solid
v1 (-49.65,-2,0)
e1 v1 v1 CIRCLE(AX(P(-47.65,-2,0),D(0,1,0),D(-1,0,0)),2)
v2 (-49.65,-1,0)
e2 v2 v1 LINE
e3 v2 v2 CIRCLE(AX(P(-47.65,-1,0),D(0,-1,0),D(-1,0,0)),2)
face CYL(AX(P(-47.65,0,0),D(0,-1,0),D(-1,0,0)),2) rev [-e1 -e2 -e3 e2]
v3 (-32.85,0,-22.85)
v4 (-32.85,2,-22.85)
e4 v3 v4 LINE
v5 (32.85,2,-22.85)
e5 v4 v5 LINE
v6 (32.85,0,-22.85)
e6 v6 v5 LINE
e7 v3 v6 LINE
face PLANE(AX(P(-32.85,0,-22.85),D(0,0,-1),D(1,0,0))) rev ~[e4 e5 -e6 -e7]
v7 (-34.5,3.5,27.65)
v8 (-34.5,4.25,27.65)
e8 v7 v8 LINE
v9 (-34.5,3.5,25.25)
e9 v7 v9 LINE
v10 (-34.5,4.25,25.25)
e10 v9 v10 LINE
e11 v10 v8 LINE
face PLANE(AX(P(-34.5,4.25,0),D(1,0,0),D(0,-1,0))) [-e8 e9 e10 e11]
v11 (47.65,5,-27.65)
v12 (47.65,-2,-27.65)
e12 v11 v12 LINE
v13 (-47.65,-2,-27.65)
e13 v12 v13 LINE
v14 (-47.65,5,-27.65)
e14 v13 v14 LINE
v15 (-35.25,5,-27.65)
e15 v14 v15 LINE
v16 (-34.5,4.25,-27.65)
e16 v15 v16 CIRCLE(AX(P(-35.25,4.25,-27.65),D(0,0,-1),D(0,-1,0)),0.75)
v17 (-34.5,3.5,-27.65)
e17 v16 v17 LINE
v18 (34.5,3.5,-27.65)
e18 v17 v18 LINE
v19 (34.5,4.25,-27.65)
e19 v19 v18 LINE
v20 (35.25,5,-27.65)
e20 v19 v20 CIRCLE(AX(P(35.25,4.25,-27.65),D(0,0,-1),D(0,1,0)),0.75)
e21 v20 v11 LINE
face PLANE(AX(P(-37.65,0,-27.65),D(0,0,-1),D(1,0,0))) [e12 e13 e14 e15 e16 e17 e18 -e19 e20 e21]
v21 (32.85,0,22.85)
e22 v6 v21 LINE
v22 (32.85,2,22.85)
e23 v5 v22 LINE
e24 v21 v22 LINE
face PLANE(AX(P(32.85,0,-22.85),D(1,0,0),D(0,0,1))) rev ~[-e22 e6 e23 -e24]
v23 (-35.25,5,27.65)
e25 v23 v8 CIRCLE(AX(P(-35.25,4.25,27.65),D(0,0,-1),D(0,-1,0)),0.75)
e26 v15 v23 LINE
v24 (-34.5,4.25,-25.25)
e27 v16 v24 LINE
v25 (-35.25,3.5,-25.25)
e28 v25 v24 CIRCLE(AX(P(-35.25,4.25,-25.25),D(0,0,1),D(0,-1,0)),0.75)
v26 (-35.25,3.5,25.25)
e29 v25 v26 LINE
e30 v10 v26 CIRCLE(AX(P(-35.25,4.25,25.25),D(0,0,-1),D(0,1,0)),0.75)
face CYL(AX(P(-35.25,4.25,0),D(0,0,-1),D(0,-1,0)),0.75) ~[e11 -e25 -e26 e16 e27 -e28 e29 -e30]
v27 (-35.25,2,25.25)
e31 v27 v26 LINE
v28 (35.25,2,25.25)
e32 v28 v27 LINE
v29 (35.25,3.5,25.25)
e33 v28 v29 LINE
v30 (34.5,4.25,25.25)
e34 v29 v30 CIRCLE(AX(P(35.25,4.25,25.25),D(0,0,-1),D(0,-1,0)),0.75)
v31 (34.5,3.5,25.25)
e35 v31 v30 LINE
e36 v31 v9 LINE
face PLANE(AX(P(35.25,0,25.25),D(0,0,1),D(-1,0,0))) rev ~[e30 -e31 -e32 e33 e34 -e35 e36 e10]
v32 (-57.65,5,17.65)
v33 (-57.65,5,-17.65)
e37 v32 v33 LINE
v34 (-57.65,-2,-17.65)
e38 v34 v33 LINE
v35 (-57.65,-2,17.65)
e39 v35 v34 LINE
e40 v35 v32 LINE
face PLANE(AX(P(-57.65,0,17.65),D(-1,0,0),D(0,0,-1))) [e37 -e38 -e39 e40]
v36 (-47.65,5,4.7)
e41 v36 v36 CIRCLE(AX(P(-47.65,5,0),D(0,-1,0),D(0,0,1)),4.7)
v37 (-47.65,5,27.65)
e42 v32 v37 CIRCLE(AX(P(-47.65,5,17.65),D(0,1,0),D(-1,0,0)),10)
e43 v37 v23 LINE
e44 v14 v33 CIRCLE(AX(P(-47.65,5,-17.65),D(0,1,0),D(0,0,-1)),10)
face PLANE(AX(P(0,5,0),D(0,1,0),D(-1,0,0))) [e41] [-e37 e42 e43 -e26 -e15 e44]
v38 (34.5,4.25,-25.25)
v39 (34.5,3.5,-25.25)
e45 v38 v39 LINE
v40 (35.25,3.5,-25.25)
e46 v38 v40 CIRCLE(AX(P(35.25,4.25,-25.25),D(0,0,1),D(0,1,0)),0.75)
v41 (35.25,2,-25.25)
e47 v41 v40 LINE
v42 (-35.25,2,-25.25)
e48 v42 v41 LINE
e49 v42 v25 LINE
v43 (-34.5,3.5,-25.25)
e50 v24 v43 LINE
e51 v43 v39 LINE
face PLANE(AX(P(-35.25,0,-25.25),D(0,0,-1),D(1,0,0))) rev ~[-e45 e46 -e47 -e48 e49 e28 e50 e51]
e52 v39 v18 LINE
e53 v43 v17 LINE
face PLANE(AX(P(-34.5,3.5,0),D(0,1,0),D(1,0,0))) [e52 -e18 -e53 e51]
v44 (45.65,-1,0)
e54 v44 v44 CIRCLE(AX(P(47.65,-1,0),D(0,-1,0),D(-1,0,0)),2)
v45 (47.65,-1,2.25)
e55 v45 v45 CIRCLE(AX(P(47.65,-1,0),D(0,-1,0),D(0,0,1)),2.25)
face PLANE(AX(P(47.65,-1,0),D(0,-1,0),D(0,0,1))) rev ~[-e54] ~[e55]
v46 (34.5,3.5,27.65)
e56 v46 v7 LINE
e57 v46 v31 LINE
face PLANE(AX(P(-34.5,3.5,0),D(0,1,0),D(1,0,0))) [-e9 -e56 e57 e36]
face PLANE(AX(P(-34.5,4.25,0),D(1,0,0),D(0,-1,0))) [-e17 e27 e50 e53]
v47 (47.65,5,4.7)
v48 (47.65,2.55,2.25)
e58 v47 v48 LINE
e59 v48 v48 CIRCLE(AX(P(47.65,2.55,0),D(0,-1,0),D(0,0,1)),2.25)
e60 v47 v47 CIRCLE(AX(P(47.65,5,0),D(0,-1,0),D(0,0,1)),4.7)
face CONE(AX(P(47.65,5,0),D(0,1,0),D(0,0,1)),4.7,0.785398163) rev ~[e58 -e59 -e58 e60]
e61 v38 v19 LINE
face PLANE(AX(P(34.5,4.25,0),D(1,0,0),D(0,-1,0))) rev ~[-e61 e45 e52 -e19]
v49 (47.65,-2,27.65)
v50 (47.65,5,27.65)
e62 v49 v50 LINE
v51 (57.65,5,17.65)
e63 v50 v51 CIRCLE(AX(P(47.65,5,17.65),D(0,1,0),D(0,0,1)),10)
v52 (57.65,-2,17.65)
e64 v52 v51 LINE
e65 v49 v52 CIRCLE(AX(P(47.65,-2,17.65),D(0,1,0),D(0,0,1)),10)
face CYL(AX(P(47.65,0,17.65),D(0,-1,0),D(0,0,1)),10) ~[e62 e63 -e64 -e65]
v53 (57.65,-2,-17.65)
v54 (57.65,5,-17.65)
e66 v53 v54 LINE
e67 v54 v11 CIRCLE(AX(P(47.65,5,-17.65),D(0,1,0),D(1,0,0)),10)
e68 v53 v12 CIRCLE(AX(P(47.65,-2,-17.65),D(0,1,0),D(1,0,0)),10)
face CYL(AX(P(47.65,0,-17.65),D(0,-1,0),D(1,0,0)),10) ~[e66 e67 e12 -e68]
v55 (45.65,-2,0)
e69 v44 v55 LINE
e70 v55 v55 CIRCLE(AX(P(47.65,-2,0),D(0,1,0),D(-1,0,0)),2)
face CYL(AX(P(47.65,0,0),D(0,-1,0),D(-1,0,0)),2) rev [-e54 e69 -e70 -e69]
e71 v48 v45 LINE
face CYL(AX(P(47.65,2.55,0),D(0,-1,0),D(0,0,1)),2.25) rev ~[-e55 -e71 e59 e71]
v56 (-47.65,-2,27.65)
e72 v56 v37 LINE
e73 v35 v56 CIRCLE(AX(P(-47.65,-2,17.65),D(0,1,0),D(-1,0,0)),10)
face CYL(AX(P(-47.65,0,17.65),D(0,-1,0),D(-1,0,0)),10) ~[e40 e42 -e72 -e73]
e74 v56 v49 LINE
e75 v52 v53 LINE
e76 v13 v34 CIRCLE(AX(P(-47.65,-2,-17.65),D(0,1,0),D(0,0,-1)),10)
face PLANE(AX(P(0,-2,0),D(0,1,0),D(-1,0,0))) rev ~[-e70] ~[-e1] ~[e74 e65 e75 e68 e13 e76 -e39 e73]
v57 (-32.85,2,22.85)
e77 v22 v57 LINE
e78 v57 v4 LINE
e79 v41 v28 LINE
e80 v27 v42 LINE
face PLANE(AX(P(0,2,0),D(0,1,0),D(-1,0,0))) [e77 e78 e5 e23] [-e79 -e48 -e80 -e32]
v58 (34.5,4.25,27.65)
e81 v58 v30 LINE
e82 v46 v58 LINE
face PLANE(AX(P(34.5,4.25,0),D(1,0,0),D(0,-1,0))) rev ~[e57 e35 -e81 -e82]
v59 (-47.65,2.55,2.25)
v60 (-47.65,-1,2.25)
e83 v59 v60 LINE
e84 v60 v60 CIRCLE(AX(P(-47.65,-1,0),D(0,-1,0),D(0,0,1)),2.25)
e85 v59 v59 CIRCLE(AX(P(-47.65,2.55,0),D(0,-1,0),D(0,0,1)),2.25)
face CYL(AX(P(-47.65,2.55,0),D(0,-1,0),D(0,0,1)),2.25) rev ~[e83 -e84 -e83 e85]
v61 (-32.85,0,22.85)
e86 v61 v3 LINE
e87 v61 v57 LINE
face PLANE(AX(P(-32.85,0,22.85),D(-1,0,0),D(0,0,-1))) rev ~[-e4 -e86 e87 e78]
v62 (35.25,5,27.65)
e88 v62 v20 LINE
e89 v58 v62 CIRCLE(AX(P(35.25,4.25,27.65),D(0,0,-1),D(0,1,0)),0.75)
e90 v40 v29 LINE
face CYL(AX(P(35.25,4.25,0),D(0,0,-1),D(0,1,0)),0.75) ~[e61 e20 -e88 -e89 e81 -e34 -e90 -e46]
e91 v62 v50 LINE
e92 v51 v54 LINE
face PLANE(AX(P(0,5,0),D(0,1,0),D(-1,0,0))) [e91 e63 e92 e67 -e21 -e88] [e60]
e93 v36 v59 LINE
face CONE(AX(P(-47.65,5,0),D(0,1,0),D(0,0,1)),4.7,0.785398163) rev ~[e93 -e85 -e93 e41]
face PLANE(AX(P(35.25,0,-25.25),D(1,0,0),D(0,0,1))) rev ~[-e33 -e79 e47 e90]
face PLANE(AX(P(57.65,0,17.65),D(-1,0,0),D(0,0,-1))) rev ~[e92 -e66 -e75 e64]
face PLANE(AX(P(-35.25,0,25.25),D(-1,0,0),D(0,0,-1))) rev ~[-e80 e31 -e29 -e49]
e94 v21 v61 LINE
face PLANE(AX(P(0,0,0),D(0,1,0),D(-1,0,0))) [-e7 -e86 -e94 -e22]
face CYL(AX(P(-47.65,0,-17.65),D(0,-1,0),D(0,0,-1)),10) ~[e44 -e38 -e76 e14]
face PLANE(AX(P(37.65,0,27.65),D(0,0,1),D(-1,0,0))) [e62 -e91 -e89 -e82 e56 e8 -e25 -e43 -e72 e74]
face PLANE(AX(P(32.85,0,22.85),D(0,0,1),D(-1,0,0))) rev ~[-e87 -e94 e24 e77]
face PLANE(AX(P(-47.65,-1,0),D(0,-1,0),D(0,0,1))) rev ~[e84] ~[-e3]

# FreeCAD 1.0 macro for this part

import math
import FreeCAD as App
import Part
import Sketcher

V = App.Vector


def add_polygon(sketch, points):
    """Adds a closed chain of lines whose ends are joined by coincident constraints."""
    first, n = sketch.GeometryCount, len(points)
    for a, b in zip(points, points[1:] + points[:1]):
        sketch.addGeometry(Part.LineSegment(App.Vector(*a, 0), App.Vector(*b, 0)), False)
    for i in range(n):
        sketch.addConstraint(Sketcher.Constraint("Coincident", first + i, 2, first + (i + 1) % n, 1))

doc = App.newDocument("Part")
body = doc.addObject("PartDesign::Body", "Body")

# Sketch on XZ plane
sketch1 = doc.addObject("Sketcher::SketchObject", "Sketch")
body.addObject(sketch1)
sketch1.AttachmentSupport = (doc.XZ_Plane, [""])
sketch1.MapMode = "FlatFace"
sketch1.addGeometry(Part.ArcOfCircle(Part.Circle(V(-47.65, -17.65, 0), V(0, 0, 1), 10), math.radians(180), math.radians(270)), False)
sketch1.addGeometry(Part.LineSegment(V(-57.65, -17.65, 0), V(-57.65, 17.65, 0)), False)
sketch1.addGeometry(Part.ArcOfCircle(Part.Circle(V(-47.65, 17.65, 0), V(0, 0, 1), 10), math.radians(90), math.radians(180)), False)
sketch1.addGeometry(Part.LineSegment(V(-47.65, 27.65, 0), V(47.65, 27.65, 0)), False)
sketch1.addGeometry(Part.ArcOfCircle(Part.Circle(V(47.65, 17.65, 0), V(0, 0, 1), 10), math.radians(0), math.radians(90)), False)
sketch1.addGeometry(Part.LineSegment(V(57.65, 17.65, 0), V(57.65, -17.65, 0)), False)
sketch1.addGeometry(Part.ArcOfCircle(Part.Circle(V(47.65, -17.65, 0), V(0, 0, 1), 10), math.radians(-90), math.radians(0)), False)
sketch1.addGeometry(Part.LineSegment(V(47.65, -27.65, 0), V(-47.65, -27.65, 0)), False)
sketch1.addGeometry(Part.Circle(V(47.65, 0, 0), V(0, 0, 1), 2), False)
sketch1.addGeometry(Part.Circle(V(-47.65, 0, 0), V(0, 0, 1), 2), False)
sketch1.addConstraint(Sketcher.Constraint("Tangent", 0, 1, 1, 1))
sketch1.addConstraint(Sketcher.Constraint("Tangent", 1, 2, 2, 2))
sketch1.addConstraint(Sketcher.Constraint("Tangent", 2, 1, 3, 1))
sketch1.addConstraint(Sketcher.Constraint("Tangent", 3, 2, 4, 2))
sketch1.addConstraint(Sketcher.Constraint("Tangent", 4, 1, 5, 1))
sketch1.addConstraint(Sketcher.Constraint("Tangent", 5, 2, 6, 2))
sketch1.addConstraint(Sketcher.Constraint("Tangent", 6, 1, 7, 1))
sketch1.addConstraint(Sketcher.Constraint("Tangent", 7, 2, 0, 2))
sketch1.addConstraint(Sketcher.Constraint("Vertical", 1))
sketch1.addConstraint(Sketcher.Constraint("Horizontal", 3))
sketch1.addConstraint(Sketcher.Constraint("Vertical", 5))
sketch1.addConstraint(Sketcher.Constraint("Horizontal", 7))
sketch1.addConstraint(Sketcher.Constraint("Equal", 0, 2))
sketch1.addConstraint(Sketcher.Constraint("Equal", 2, 4))
sketch1.addConstraint(Sketcher.Constraint("Equal", 4, 6))
sketch1.addConstraint(Sketcher.Constraint("Equal", 8, 9))
sketch1.addConstraint(Sketcher.Constraint("Symmetric", 0, 3, 4, 3, -1, 1))
sketch1.addConstraint(Sketcher.Constraint("Symmetric", 8, 3, 9, 3, -1, 1))
sketch1.addConstraint(Sketcher.Constraint("PointOnObject", 8, 3, -1))
sketch1.addConstraint(Sketcher.Constraint("Vertical", 6, 3, 8, 3))
sketch1.addConstraint(Sketcher.Constraint("Diameter", 8, 4.0))
sketch1.addConstraint(Sketcher.Constraint("Radius", 0, 10.0))
sketch1.addConstraint(Sketcher.Constraint("DistanceX", 3, 1, 3, 2, 95.3))
sketch1.addConstraint(Sketcher.Constraint("DistanceY", 1, 1, 1, 2, 35.3))
pad1 = doc.addObject("PartDesign::Pad", "Pad")
body.addObject(pad1)
pad1.Profile = sketch1
pad1.Length = 2

# Sketch on XZ plane
sketch2 = doc.addObject("Sketcher::SketchObject", "Sketch001")
body.addObject(sketch2)
sketch2.AttachmentSupport = (doc.XZ_Plane, [""])
sketch2.MapMode = "FlatFace"
sketch2.addGeometry(Part.ArcOfCircle(Part.Circle(V(-47.65, -17.65, 0), V(0, 0, 1), 10), math.radians(180), math.radians(270)), False)  # 0
sketch2.addGeometry(Part.LineSegment(V(-57.65, -17.65, 0), V(-57.65, 17.65, 0)), False)  # 1
sketch2.addGeometry(Part.ArcOfCircle(Part.Circle(V(-47.65, 17.65, 0), V(0, 0, 1), 10), math.radians(90), math.radians(180)), False)  # 2
sketch2.addGeometry(Part.LineSegment(V(-47.65, 27.65, 0), V(47.65, 27.65, 0)), False)  # 3
sketch2.addGeometry(Part.ArcOfCircle(Part.Circle(V(47.65, 17.65, 0), V(0, 0, 1), 10), math.radians(0), math.radians(90)), False)  # 4
sketch2.addGeometry(Part.LineSegment(V(57.65, 17.65, 0), V(57.65, -17.65, 0)), False)  # 5
sketch2.addGeometry(Part.ArcOfCircle(Part.Circle(V(47.65, -17.65, 0), V(0, 0, 1), 10), math.radians(-90), math.radians(0)), False)  # 6
sketch2.addGeometry(Part.LineSegment(V(47.65, -27.65, 0), V(-47.65, -27.65, 0)), False)  # 7
add_polygon(sketch2, [(-35.25, 25.25), (-35.25, -25.25), (35.25, -25.25), (35.25, 25.25)])  # lines 8-11
sketch2.addGeometry(Part.Circle(V(47.65, 0, 0), V(0, 0, 1), 2), False)  # 12
sketch2.addGeometry(Part.Circle(V(-47.65, 0, 0), V(0, 0, 1), 2), False)  # 13
sketch2.addConstraint(Sketcher.Constraint("Tangent", 0, 1, 1, 1))
sketch2.addConstraint(Sketcher.Constraint("Tangent", 1, 2, 2, 2))
sketch2.addConstraint(Sketcher.Constraint("Tangent", 2, 1, 3, 1))
sketch2.addConstraint(Sketcher.Constraint("Tangent", 3, 2, 4, 2))
sketch2.addConstraint(Sketcher.Constraint("Tangent", 4, 1, 5, 1))
sketch2.addConstraint(Sketcher.Constraint("Tangent", 5, 2, 6, 2))
sketch2.addConstraint(Sketcher.Constraint("Tangent", 6, 1, 7, 1))
sketch2.addConstraint(Sketcher.Constraint("Tangent", 7, 2, 0, 2))
sketch2.addConstraint(Sketcher.Constraint("Vertical", 1))
sketch2.addConstraint(Sketcher.Constraint("Horizontal", 3))
sketch2.addConstraint(Sketcher.Constraint("Vertical", 5))
sketch2.addConstraint(Sketcher.Constraint("Horizontal", 7))
sketch2.addConstraint(Sketcher.Constraint("Vertical", 8))
sketch2.addConstraint(Sketcher.Constraint("Horizontal", 9))
sketch2.addConstraint(Sketcher.Constraint("Vertical", 10))
sketch2.addConstraint(Sketcher.Constraint("Horizontal", 11))
sketch2.addConstraint(Sketcher.Constraint("Equal", 0, 2))
sketch2.addConstraint(Sketcher.Constraint("Equal", 2, 4))
sketch2.addConstraint(Sketcher.Constraint("Equal", 4, 6))
sketch2.addConstraint(Sketcher.Constraint("Equal", 12, 13))
sketch2.addConstraint(Sketcher.Constraint("Symmetric", 0, 3, 4, 3, -1, 1))
sketch2.addConstraint(Sketcher.Constraint("Symmetric", 12, 3, 13, 3, -1, 1))
sketch2.addConstraint(Sketcher.Constraint("Symmetric", 8, 2, 10, 2, -1, 1))
sketch2.addConstraint(Sketcher.Constraint("PointOnObject", 12, 3, -1))
sketch2.addConstraint(Sketcher.Constraint("Vertical", 6, 3, 12, 3))
sketch2.addConstraint(Sketcher.Constraint("Diameter", 12, 4.0))
sketch2.addConstraint(Sketcher.Constraint("Radius", 0, 10.0))
sketch2.addConstraint(Sketcher.Constraint("DistanceX", 9, 1, 9, 2, 70.5))
sketch2.addConstraint(Sketcher.Constraint("DistanceY", 8, 2, 8, 1, 50.5))
sketch2.addConstraint(Sketcher.Constraint("DistanceY", 7, 2, 8, 2, 2.4))
sketch2.addConstraint(Sketcher.Constraint("DistanceX", 3, 1, 3, 2, 95.3))
pad2 = doc.addObject("PartDesign::Pad", "Pad001")
body.addObject(pad2)
pad2.Profile = sketch2
pad2.Length = 5
pad2.Reversed = True

# Sketch on XZ plane
sketch3 = doc.addObject("Sketcher::SketchObject", "Sketch002")
body.addObject(sketch3)
sketch3.AttachmentSupport = (doc.XZ_Plane, [""])
sketch3.MapMode = "FlatFace"
add_polygon(sketch3, [(35.25, -25.25), (-35.25, -25.25), (-35.25, 25.25), (35.25, 25.25)])  # lines 0-3
add_polygon(sketch3, [(-32.85, 22.85), (-32.85, -22.85), (32.85, -22.85), (32.85, 22.85)])  # lines 4-7
sketch3.addConstraint(Sketcher.Constraint("Horizontal", 0))
sketch3.addConstraint(Sketcher.Constraint("Vertical", 1))
sketch3.addConstraint(Sketcher.Constraint("Horizontal", 2))
sketch3.addConstraint(Sketcher.Constraint("Vertical", 3))
sketch3.addConstraint(Sketcher.Constraint("Vertical", 4))
sketch3.addConstraint(Sketcher.Constraint("Horizontal", 5))
sketch3.addConstraint(Sketcher.Constraint("Vertical", 6))
sketch3.addConstraint(Sketcher.Constraint("Horizontal", 7))
sketch3.addConstraint(Sketcher.Constraint("Symmetric", 0, 2, 2, 2, -1, 1))
sketch3.addConstraint(Sketcher.Constraint("Symmetric", 4, 2, 6, 2, -1, 1))
sketch3.addConstraint(Sketcher.Constraint("DistanceX", 0, 2, 0, 1, 70.5))
sketch3.addConstraint(Sketcher.Constraint("DistanceY", 1, 1, 1, 2, 50.5))
sketch3.addConstraint(Sketcher.Constraint("DistanceX", 0, 2, 4, 2, 2.4))
sketch3.addConstraint(Sketcher.Constraint("DistanceY", 0, 2, 4, 2, 2.4))
pad3 = doc.addObject("PartDesign::Pad", "Pad002")
body.addObject(pad3)
pad3.Profile = sketch3
pad3.Length = 2
pad3.Reversed = True

# Sketch on XY plane
sketch4 = doc.addObject("Sketcher::SketchObject", "Sketch003")
body.addObject(sketch4)
sketch4.AttachmentSupport = (doc.XY_Plane, [""])
sketch4.MapMode = "FlatFace"
sketch4.addGeometry(Part.ArcOfCircle(Part.Circle(V(35.25, 4.25, 0), V(0, 0, 1), 0.75), math.radians(90), math.radians(270)), False)
sketch4.addGeometry(Part.LineSegment(V(35.25, 3.5, 0), V(35.25, 5, 0)), False)
sketch4.addGeometry(Part.LineSegment(V(-35.25, 5, 0), V(-35.25, 3.5, 0)), False)
sketch4.addGeometry(Part.ArcOfCircle(Part.Circle(V(-35.25, 4.25, 0), V(0, 0, 1), 0.75), math.radians(-90), math.radians(90)), False)
sketch4.addConstraint(Sketcher.Constraint("Coincident", 0, 1, 1, 2))
sketch4.addConstraint(Sketcher.Constraint("Coincident", 1, 1, 0, 2))
sketch4.addConstraint(Sketcher.Constraint("Coincident", 2, 1, 3, 2))
sketch4.addConstraint(Sketcher.Constraint("Coincident", 3, 1, 2, 2))
sketch4.addConstraint(Sketcher.Constraint("Vertical", 1))
sketch4.addConstraint(Sketcher.Constraint("Vertical", 2))
sketch4.addConstraint(Sketcher.Constraint("Equal", 0, 3))
sketch4.addConstraint(Sketcher.Constraint("Symmetric", 0, 3, 3, 3, -2))
sketch4.addConstraint(Sketcher.Constraint("Vertical", 3, 3, 2, 1))
sketch4.addConstraint(Sketcher.Constraint("Radius", 0, 0.75))
sketch4.addConstraint(Sketcher.Constraint("DistanceY", -1, 1, 0, 1, 5.0))
sketch4.addConstraint(Sketcher.Constraint("DistanceX", 3, 3, 0, 3, 70.5))
sketch4.addConstraint(Sketcher.Constraint("DistanceX", 3, 3, 0, 1, 70.5))
pad4 = doc.addObject("PartDesign::Pad", "Pad003")
body.addObject(pad4)
pad4.Profile = sketch4
pad4.Length = 50.5
pad4.Midplane = True

# Sketch on XY plane
sketch5 = doc.addObject("Sketcher::SketchObject", "Sketch004")
body.addObject(sketch5)
sketch5.AttachmentSupport = (doc.XY_Plane, [""])
sketch5.MapMode = "FlatFace"
sketch5.addGeometry(Part.ArcOfCircle(Part.Circle(V(35.25, 4.25, 0), V(0, 0, 1), 0.75), math.radians(90), math.radians(180)), False)
sketch5.addGeometry(Part.LineSegment(V(35.25, 5, 0), V(-35.25, 5, 0)), False)
sketch5.addGeometry(Part.ArcOfCircle(Part.Circle(V(-35.25, 4.25, 0), V(0, 0, 1), 0.75), math.radians(0), math.radians(90)), False)
sketch5.addGeometry(Part.LineSegment(V(-34.5, 4.25, 0), V(-34.5, 3.5, 0)), False)
sketch5.addGeometry(Part.LineSegment(V(-34.5, 3.5, 0), V(34.5, 3.5, 0)), False)
sketch5.addGeometry(Part.LineSegment(V(34.5, 3.5, 0), V(34.5, 4.25, 0)), False)
sketch5.addConstraint(Sketcher.Constraint("Tangent", 0, 1, 1, 1))
sketch5.addConstraint(Sketcher.Constraint("Tangent", 1, 2, 2, 2))
sketch5.addConstraint(Sketcher.Constraint("Tangent", 2, 1, 3, 1))
sketch5.addConstraint(Sketcher.Constraint("Coincident", 3, 2, 4, 1))
sketch5.addConstraint(Sketcher.Constraint("Coincident", 4, 2, 5, 1))
sketch5.addConstraint(Sketcher.Constraint("Tangent", 5, 2, 0, 2))
sketch5.addConstraint(Sketcher.Constraint("Horizontal", 1))
sketch5.addConstraint(Sketcher.Constraint("Vertical", 3))
sketch5.addConstraint(Sketcher.Constraint("Horizontal", 4))
sketch5.addConstraint(Sketcher.Constraint("Vertical", 5))
sketch5.addConstraint(Sketcher.Constraint("Equal", 0, 2))
sketch5.addConstraint(Sketcher.Constraint("Radius", 0, 0.75))
sketch5.addConstraint(Sketcher.Constraint("DistanceY", 3, 2, 1, 2, 1.5))
sketch5.addConstraint(Sketcher.Constraint("DistanceX", 4, 1, 4, 2, 69.0))
sketch5.addConstraint(Sketcher.Constraint("DistanceY", -1, 1, 0, 1, 5.0))
sketch5.addConstraint(Sketcher.Constraint("DistanceX", 2, 1, -1, 1, 34.5))
pocket1 = doc.addObject("PartDesign::Pocket", "Pocket")
body.addObject(pocket1)
pocket1.Profile = sketch5
pocket1.Type = "ThroughAll"
pocket1.Midplane = True

# Sketch on XZ plane
sketch6 = doc.addObject("Sketcher::SketchObject", "Sketch005")
body.addObject(sketch6)
sketch6.AttachmentSupport = (doc.XZ_Plane, [""])
sketch6.MapMode = "FlatFace"
sketch6.AttachmentOffset = App.Placement(V(0, 0, -5), App.Rotation())
sketch6.addGeometry(Part.Circle(V(-47.65, 0, 0), V(0, 0, 1), 2.25), False)
sketch6.addGeometry(Part.Circle(V(47.65, 0, 0), V(0, 0, 1), 2.25), False)
sketch6.addConstraint(Sketcher.Constraint("Equal", 0, 1))
sketch6.addConstraint(Sketcher.Constraint("Symmetric", 0, 3, 1, 3, -1, 1))
sketch6.addConstraint(Sketcher.Constraint("PointOnObject", 0, 3, -1))
sketch6.addConstraint(Sketcher.Constraint("Diameter", 0, 4.5))
sketch6.addConstraint(Sketcher.Constraint("DistanceX", 0, 3, 1, 3, 95.3))
doc.recompute()
hole = doc.addObject("PartDesign::Hole", "Hole")
body.addObject(hole)
hole.Profile = sketch6
hole.ThreadType = "None"
hole.Diameter = 4.5
hole.DepthType = "Dimension"
hole.Depth = 6
hole.DrillPoint = "Flat"
hole.HoleCutType = "Countersink"
hole.HoleCutDiameter = 9.4
hole.HoleCutCountersinkAngle = 90
hole.Reversed = True

doc.recompute()
